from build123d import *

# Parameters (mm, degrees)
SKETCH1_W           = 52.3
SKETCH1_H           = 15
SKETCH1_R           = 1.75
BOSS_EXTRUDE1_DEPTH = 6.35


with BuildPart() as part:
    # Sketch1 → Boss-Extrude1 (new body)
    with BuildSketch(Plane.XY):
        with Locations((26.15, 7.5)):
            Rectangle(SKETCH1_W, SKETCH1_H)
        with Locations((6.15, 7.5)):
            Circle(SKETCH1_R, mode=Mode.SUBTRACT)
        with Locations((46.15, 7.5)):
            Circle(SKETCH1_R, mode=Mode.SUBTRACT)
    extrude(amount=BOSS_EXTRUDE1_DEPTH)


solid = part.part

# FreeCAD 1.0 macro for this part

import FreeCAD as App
import Part
import Sketcher

doc = App.newDocument("Part")
params = doc.addObject("Spreadsheet::Sheet", "Params")
for row, (alias, value) in enumerate([
    ("sketch1_diameter", "3.5 mm"),
    ("sketch1_height", "15 mm"),
    ("sketch1_width", "52.3 mm"),
    ("pad1_length", "6.35 mm"),
], start=1):
    params.set(f"A{row}", alias)
    params.set(f"B{row}", "=" + value)
    params.setAlias(f"B{row}", alias)

body = doc.addObject("PartDesign::Body", "Body")

# Sketch on XY plane
sketch1 = body.newObject("Sketcher::SketchObject", "Sketch")
sketch1.AttachmentSupport = (doc.getObject("XY_Plane"), [""])
sketch1.MapMode = "FlatFace"
sketch1.addGeometry([
    Part.LineSegment(App.Vector(0, 15, 0), App.Vector(0, 0, 0)),  # 0
    Part.LineSegment(App.Vector(0, 0, 0), App.Vector(52.3, 0, 0)),  # 1
    Part.LineSegment(App.Vector(52.3, 0, 0), App.Vector(52.3, 15, 0)),  # 2
    Part.LineSegment(App.Vector(52.3, 15, 0), App.Vector(0, 15, 0)),  # 3
    Part.Circle(App.Vector(6.2, 7.5, 0), App.Vector(0, 0, 1), 1.8),  # 4
    Part.Circle(App.Vector(46.1, 7.5, 0), App.Vector(0, 0, 1), 1.8),  # 5
], False)
sketch1.addConstraint([
    Sketcher.Constraint("Coincident", 0, 2, 1, 1),
    Sketcher.Constraint("Coincident", 1, 2, 2, 1),
    Sketcher.Constraint("Coincident", 2, 2, 3, 1),
    Sketcher.Constraint("Coincident", 3, 2, 0, 1),
    Sketcher.Constraint("Vertical", 0),
    Sketcher.Constraint("Horizontal", 1),
    Sketcher.Constraint("Vertical", 2),
    Sketcher.Constraint("Horizontal", 3),
    Sketcher.Constraint("Coincident", 0, 2, -1, 1),
    Sketcher.Constraint("Equal", 4, 5),
    Sketcher.Constraint("Horizontal", 4, 3, 5, 3),
    Sketcher.Constraint("Diameter", 4, 3.5),
    Sketcher.Constraint("DistanceY", 0, 2, 0, 1, 15.0),
    Sketcher.Constraint("DistanceX", 1, 1, 1, 2, 52.3),
    Sketcher.Constraint("DistanceX", 4, 3, 5, 3, 40.0),
    Sketcher.Constraint("DistanceY", -1, 1, 4, 3, 7.5),
    Sketcher.Constraint("DistanceX", -1, 1, 4, 3, 6.15),
])
sketch1.setExpression("Constraints[11]", "Params.sketch1_diameter")
sketch1.setExpression("Constraints[12]", "Params.sketch1_height")
sketch1.setExpression("Constraints[13]", "Params.sketch1_width")
pad1 = body.newObject("PartDesign::Pad", "Pad")
pad1.Profile = sketch1
pad1.setExpression("Length", "Params.pad1_length")

doc.recompute()
